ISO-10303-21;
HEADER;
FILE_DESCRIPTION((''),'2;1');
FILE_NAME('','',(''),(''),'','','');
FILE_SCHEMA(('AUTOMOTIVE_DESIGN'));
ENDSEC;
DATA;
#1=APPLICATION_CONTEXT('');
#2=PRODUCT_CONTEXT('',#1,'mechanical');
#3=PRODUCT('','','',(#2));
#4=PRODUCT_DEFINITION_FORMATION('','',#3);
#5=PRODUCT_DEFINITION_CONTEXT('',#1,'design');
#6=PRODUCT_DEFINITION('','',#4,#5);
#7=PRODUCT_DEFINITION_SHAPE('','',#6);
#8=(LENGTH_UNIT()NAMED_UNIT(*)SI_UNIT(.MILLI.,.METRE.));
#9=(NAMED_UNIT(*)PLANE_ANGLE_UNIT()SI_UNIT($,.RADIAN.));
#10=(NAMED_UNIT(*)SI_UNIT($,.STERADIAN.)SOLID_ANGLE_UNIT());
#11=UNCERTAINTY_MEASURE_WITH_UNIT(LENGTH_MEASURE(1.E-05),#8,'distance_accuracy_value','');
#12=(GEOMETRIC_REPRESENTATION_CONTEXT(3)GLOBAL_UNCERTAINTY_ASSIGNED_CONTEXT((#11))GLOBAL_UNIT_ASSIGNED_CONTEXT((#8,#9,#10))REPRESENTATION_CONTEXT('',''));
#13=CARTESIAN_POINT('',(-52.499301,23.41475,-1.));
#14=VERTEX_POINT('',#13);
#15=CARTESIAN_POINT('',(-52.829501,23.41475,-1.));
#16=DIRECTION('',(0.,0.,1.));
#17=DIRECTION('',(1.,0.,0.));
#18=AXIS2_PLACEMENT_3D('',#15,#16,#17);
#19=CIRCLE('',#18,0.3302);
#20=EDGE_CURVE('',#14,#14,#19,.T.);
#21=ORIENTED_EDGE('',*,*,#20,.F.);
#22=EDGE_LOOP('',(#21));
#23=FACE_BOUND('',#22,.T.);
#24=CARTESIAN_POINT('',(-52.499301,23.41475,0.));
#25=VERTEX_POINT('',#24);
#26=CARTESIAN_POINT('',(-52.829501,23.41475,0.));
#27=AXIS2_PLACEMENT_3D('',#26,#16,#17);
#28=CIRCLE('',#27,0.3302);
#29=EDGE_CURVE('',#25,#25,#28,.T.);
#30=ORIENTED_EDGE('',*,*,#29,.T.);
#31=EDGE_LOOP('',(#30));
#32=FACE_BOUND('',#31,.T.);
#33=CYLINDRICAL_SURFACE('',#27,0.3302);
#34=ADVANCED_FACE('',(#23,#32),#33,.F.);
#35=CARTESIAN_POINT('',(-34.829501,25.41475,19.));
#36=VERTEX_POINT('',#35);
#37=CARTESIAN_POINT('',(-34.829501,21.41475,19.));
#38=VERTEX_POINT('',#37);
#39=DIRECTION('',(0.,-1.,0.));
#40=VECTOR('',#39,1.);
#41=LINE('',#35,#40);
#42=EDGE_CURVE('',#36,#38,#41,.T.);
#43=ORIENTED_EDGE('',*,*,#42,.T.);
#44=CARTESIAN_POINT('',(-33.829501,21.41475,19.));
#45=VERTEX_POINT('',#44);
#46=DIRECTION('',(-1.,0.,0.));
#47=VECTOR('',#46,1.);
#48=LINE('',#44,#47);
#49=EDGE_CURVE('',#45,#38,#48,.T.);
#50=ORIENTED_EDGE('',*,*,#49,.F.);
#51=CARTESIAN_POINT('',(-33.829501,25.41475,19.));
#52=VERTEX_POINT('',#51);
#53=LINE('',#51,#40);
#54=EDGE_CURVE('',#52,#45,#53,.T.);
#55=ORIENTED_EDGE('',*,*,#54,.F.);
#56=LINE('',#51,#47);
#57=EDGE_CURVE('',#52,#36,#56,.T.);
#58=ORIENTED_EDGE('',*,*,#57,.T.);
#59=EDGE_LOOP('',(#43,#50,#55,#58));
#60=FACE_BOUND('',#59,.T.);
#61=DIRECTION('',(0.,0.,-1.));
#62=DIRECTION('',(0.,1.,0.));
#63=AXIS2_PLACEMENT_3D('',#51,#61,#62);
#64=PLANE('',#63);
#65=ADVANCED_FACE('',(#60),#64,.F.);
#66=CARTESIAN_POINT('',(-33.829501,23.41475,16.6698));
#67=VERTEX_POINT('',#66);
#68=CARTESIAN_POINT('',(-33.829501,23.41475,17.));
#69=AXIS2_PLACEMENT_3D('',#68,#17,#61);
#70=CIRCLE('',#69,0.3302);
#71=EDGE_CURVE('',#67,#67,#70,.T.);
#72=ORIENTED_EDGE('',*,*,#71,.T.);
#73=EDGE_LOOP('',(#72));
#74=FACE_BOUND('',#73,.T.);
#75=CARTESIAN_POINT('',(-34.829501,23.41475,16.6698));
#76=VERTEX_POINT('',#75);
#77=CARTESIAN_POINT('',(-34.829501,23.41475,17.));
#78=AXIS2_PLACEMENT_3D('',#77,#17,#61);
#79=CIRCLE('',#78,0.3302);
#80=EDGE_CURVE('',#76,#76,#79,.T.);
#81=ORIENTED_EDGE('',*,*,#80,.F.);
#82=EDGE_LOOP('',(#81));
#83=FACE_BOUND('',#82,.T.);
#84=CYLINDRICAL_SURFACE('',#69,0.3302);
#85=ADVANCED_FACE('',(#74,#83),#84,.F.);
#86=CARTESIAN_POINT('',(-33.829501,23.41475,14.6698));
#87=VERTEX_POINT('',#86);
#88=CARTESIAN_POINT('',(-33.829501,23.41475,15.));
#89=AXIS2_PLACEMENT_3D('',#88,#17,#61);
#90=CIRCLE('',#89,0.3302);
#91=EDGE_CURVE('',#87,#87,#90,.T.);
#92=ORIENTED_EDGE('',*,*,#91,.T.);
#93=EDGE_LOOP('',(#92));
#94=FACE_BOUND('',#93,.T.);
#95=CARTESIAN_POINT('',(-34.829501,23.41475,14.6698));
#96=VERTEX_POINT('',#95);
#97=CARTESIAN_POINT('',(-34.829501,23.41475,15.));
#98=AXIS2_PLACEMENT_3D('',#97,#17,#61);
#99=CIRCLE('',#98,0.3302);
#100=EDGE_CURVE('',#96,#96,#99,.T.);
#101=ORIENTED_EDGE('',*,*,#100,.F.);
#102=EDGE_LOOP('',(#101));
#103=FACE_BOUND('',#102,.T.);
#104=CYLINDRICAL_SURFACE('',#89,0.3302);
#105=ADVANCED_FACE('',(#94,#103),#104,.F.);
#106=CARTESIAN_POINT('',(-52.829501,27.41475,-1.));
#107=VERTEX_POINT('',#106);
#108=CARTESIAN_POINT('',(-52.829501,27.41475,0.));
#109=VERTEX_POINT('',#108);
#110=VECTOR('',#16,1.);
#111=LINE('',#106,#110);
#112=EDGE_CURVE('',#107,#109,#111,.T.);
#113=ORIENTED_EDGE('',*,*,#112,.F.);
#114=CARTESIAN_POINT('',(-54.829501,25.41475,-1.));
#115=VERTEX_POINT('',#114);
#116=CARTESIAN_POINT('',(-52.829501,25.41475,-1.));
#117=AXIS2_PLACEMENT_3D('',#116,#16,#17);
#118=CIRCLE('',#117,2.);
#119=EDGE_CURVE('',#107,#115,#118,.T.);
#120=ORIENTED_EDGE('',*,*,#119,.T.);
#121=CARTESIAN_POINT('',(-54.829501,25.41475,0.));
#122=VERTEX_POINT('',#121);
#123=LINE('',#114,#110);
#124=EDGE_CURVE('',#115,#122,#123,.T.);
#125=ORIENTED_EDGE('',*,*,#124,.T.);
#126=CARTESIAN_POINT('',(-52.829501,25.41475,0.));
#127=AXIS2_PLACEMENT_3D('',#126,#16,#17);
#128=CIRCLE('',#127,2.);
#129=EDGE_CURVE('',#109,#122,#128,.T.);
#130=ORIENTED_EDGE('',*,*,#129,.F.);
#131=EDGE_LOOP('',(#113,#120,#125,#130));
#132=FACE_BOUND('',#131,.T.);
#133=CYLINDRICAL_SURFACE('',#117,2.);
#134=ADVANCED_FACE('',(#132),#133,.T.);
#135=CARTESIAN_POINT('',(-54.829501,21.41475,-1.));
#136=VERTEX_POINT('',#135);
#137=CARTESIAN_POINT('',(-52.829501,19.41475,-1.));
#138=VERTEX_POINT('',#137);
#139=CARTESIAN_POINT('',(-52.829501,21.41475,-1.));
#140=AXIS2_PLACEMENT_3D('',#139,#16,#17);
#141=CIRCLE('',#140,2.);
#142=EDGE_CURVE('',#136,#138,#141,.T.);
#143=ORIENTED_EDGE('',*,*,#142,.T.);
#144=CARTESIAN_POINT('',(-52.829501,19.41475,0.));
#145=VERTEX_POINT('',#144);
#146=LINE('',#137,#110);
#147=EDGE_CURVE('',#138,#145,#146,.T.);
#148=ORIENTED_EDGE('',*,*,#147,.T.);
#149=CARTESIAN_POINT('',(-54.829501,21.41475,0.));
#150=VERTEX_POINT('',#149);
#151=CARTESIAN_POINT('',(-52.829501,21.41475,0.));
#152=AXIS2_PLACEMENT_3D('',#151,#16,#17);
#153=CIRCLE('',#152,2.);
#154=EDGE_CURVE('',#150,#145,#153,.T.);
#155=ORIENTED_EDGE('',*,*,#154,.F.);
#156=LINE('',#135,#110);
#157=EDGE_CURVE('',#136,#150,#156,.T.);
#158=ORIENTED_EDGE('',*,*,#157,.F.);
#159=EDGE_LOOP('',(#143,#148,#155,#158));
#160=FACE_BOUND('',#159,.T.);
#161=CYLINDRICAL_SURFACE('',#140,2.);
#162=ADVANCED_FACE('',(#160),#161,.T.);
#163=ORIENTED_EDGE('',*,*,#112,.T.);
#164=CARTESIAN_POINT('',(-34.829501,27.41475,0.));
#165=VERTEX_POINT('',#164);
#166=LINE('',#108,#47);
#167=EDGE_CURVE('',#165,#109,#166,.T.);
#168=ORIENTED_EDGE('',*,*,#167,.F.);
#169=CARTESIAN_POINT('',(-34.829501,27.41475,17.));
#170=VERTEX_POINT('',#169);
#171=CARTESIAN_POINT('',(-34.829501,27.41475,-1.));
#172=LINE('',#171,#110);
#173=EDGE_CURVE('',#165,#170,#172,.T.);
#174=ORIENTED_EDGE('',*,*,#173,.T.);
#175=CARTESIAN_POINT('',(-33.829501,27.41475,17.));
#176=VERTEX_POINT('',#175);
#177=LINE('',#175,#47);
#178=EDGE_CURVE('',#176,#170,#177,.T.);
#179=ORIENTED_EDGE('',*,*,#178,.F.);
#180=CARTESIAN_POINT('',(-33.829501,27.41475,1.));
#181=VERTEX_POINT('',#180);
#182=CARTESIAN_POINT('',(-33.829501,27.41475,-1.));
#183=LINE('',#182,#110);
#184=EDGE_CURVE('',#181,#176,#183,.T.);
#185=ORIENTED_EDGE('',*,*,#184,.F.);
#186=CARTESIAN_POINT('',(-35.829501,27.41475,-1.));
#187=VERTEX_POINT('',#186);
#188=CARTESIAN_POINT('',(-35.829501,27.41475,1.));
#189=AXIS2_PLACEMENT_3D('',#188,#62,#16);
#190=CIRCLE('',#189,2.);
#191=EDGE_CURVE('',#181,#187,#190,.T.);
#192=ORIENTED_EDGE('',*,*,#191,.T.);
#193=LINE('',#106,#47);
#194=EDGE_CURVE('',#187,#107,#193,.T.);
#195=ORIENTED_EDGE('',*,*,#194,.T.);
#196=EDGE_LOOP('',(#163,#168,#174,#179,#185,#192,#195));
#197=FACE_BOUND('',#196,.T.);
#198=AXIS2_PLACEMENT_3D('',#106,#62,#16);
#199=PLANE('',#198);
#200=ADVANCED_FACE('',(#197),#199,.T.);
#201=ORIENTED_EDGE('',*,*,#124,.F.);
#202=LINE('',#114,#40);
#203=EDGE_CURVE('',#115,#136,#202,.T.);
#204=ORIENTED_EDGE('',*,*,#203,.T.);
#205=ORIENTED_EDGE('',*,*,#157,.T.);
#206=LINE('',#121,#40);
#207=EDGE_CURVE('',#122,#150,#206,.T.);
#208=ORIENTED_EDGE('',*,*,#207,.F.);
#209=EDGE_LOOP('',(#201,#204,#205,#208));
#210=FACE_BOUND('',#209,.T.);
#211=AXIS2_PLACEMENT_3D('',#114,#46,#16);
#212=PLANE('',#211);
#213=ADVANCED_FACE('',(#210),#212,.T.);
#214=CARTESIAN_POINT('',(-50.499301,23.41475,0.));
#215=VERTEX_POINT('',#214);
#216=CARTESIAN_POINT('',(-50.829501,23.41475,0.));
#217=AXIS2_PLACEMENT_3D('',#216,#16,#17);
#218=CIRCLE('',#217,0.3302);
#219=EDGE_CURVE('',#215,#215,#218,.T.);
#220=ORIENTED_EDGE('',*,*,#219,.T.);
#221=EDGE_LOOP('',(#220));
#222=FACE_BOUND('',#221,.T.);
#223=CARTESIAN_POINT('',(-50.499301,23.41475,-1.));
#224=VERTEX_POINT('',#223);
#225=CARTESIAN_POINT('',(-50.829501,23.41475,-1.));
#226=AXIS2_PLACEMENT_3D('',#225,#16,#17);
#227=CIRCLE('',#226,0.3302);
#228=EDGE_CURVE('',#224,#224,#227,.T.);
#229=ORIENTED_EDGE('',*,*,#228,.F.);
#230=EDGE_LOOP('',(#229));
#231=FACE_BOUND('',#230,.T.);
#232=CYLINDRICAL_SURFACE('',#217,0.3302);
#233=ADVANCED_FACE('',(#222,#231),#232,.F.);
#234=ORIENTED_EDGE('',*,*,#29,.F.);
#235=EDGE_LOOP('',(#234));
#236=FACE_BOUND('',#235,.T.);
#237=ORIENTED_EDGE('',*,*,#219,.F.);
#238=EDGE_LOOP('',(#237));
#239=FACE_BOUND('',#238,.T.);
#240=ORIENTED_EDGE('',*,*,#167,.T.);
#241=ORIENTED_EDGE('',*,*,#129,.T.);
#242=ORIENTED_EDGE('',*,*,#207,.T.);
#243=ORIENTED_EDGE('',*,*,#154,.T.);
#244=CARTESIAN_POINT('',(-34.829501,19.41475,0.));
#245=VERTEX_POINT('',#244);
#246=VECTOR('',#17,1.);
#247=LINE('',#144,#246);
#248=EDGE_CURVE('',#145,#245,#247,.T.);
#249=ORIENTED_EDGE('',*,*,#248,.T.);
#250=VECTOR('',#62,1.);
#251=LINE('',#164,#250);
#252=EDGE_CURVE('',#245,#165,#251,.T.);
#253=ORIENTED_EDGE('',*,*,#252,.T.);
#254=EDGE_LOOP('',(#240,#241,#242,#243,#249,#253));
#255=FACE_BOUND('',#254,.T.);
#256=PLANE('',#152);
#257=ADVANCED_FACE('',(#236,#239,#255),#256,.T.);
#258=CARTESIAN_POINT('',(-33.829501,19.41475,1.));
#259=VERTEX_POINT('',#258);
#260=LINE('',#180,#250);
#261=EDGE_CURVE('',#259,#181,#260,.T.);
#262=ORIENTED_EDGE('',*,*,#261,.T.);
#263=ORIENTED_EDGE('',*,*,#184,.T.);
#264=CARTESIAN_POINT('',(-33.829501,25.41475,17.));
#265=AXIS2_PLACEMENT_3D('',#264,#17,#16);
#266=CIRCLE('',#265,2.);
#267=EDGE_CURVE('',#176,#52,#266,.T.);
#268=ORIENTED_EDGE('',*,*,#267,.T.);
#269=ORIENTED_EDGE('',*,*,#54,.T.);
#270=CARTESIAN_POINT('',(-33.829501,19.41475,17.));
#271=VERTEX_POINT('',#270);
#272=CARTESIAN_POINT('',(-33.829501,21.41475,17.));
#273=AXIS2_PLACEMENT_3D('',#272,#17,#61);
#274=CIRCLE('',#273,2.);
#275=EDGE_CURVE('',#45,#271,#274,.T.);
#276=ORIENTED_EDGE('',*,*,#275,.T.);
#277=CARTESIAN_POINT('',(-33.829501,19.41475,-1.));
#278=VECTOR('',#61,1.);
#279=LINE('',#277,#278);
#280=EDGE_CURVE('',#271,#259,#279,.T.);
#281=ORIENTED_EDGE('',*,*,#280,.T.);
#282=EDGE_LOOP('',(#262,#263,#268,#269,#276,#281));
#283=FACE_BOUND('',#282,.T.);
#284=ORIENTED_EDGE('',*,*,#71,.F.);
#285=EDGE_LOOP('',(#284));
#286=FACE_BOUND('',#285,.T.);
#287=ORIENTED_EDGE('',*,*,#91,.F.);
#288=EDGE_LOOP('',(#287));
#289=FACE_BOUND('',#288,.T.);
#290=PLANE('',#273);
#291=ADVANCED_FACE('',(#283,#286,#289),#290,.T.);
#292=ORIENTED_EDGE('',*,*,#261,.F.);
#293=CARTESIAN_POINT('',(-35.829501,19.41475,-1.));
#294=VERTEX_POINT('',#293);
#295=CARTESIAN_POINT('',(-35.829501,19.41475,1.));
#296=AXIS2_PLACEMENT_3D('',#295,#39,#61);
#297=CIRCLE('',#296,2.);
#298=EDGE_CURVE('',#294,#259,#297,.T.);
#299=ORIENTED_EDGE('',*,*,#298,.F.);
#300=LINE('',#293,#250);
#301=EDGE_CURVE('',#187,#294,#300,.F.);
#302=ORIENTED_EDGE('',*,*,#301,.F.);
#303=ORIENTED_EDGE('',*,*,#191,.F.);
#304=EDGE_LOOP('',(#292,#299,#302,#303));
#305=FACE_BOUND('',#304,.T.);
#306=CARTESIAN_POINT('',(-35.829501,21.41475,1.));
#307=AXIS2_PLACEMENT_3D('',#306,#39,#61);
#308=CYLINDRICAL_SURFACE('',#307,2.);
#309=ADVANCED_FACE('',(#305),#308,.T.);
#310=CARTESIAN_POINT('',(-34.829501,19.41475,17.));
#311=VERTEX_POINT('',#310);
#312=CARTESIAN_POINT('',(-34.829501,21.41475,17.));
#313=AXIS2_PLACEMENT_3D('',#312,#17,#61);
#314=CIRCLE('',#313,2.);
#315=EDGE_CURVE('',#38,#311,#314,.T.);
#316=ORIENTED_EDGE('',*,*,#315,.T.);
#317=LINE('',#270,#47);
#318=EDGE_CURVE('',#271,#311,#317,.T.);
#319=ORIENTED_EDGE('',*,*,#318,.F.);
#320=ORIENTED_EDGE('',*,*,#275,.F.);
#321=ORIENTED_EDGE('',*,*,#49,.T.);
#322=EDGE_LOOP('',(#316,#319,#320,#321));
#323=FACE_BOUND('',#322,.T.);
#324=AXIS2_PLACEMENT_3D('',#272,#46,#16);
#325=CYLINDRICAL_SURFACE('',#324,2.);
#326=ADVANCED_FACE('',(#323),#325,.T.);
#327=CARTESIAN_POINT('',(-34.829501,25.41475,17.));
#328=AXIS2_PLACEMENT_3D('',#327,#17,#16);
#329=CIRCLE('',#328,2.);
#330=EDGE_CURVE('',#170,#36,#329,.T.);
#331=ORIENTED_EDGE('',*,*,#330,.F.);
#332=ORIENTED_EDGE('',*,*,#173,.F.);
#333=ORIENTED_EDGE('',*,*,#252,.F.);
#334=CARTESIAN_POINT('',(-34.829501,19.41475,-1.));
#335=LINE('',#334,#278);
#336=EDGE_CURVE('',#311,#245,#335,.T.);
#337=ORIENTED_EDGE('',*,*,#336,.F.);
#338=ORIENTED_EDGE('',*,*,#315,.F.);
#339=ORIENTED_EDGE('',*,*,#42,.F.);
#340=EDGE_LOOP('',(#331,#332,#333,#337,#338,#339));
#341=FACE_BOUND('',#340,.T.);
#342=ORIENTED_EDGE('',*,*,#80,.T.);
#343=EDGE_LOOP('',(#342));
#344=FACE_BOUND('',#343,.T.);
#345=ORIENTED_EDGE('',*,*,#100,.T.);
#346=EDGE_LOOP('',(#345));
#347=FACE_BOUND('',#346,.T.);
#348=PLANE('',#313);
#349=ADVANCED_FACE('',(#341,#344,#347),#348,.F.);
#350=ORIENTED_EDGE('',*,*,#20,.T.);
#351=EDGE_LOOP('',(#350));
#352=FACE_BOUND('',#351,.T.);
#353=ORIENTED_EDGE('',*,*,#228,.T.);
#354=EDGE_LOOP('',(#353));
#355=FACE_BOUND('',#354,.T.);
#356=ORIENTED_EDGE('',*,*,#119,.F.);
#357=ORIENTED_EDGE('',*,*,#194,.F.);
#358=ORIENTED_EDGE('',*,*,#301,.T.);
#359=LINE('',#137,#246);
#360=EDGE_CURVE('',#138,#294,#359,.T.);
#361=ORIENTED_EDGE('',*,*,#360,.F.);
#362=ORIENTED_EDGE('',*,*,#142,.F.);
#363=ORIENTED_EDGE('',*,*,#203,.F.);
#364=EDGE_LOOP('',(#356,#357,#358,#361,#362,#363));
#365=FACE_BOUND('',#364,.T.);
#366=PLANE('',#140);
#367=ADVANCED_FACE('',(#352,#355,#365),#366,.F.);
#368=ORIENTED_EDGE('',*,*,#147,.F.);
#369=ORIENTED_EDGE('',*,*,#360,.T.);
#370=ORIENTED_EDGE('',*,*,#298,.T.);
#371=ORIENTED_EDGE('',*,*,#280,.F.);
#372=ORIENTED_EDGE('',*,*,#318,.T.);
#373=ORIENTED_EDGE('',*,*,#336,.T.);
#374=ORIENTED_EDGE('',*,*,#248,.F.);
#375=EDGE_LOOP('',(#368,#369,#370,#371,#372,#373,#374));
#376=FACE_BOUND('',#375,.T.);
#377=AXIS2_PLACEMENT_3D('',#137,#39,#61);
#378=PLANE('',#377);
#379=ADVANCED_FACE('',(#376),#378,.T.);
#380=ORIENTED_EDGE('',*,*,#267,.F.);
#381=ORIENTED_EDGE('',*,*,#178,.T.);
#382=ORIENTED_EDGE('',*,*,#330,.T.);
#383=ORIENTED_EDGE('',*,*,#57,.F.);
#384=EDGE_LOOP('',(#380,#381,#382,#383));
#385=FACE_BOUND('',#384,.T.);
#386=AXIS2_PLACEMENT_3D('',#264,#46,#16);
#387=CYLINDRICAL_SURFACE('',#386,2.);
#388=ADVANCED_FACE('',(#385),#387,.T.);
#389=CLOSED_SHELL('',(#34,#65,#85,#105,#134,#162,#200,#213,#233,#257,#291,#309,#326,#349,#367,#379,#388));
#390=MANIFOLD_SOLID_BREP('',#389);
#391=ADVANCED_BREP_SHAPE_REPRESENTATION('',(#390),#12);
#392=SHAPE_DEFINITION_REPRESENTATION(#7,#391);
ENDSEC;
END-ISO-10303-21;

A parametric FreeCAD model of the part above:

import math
import FreeCAD as App
import Part
import Sketcher
from FreeCAD import Vector


def edges_at(feature, points):
    """Names of the edges that pass closest to the given points."""
    edges = feature.Shape.Edges
    near = lambda p: min(range(len(edges)), key=lambda i: edges[i].distToShape(Part.Vertex(*p))[0])
    return sorted({f"Edge{near(p) + 1}" for p in points})

doc = App.newDocument("Part")
params = doc.addObject("Spreadsheet::Sheet", "Params")
for row, (alias, value) in enumerate([
    ("sketch1_radius", "2 mm"),
    ("sketch1_width", "18 mm"),
    ("sketch1_height", "4 mm"),
    ("pad1_length", "1 mm"),
    ("sketch2_radius", "2 mm"),
    ("sketch2_width", "4 mm"),
    ("sketch2_height", "18 mm"),
    ("pad2_length", "1 mm"),
    ("hole_diameter", "0.6604 mm"),
    ("hole2_diameter", "0.6604 mm"),
    ("hole3_diameter", "0.6604 mm"),
    ("hole4_diameter", "0.6604 mm"),
    ("fillet_radius", "2 mm"),
], start=1):
    params.set(f"A{row}", alias)
    params.set(f"B{row}", "=" + value)
    params.setAlias(f"B{row}", alias)

body = doc.addObject("PartDesign::Body", "Body")

sketch1 = doc.addObject("Sketcher::SketchObject", "Sketch")
body.addObject(sketch1)
sketch1.AttachmentSupport = (doc.XY_Plane, [""])
sketch1.MapMode = "FlatFace"
sketch1.addGeometry([
    Part.LineSegment(Vector(-34.8, 27.4, 0), Vector(-52.8, 27.4, 0)),
    Part.ArcOfCircle(Part.Circle(Vector(-52.8, 25.4, 0), Vector(0, 0, 1), 2), math.radians(90), math.radians(180)),
    Part.LineSegment(Vector(-54.8, 25.4, 0), Vector(-54.8, 21.4, 0)),
    Part.ArcOfCircle(Part.Circle(Vector(-52.8, 21.4, 0), Vector(0, 0, 1), 2), math.radians(180), math.radians(270)),
    Part.LineSegment(Vector(-52.8, 19.4, 0), Vector(-34.8, 19.4, 0)),
    Part.LineSegment(Vector(-34.8, 19.4, 0), Vector(-34.8, 27.4, 0)),
], False)
sketch1.addConstraint([
    Sketcher.Constraint("Tangent", 0, 2, 1, 1),
    Sketcher.Constraint("Tangent", 1, 2, 2, 1),
    Sketcher.Constraint("Tangent", 2, 2, 3, 1),
    Sketcher.Constraint("Tangent", 3, 2, 4, 1),
    Sketcher.Constraint("Coincident", 4, 2, 5, 1),
    Sketcher.Constraint("Coincident", 5, 2, 0, 1),
    Sketcher.Constraint("Horizontal", 0),
    Sketcher.Constraint("Vertical", 2),
    Sketcher.Constraint("Horizontal", 4),
    Sketcher.Constraint("Vertical", 5),
    Sketcher.Constraint("Equal", 1, 3),
    Sketcher.Constraint("Radius", 1, 2.0),
    Sketcher.Constraint("DistanceX", 0, 2, 0, 1, 18.0),
    Sketcher.Constraint("DistanceY", 2, 2, 2, 1, 4.0),
    Sketcher.Constraint("DistanceX", 1, 3, -1, 1, 52.829501),
    Sketcher.Constraint("DistanceY", -1, 1, 1, 3, 25.41475),
])
sketch1.setExpression("Constraints[11]", "Params.sketch1_radius")
sketch1.setExpression("Constraints[12]", "Params.sketch1_width")
sketch1.setExpression("Constraints[13]", "Params.sketch1_height")
pad1 = doc.addObject("PartDesign::Pad", "Pad")
body.addObject(pad1)
pad1.Profile = sketch1
pad1.setExpression("Length", "Params.pad1_length")
pad1.Reversed = True

sketch2 = doc.addObject("Sketcher::SketchObject", "Sketch001")
body.addObject(sketch2)
sketch2.AttachmentSupport = (doc.YZ_Plane, [""])
sketch2.MapMode = "FlatFace"
sketch2.AttachmentOffset = App.Placement(Vector(0, 0, -34.829501), App.Rotation())
sketch2.addGeometry([
    Part.LineSegment(Vector(27.4, -1, 0), Vector(27.4, 17, 0)),
    Part.ArcOfCircle(Part.Circle(Vector(25.4, 17, 0), Vector(0, 0, 1), 2), math.radians(0), math.radians(90)),
    Part.LineSegment(Vector(25.4, 19, 0), Vector(21.4, 19, 0)),
    Part.ArcOfCircle(Part.Circle(Vector(21.4, 17, 0), Vector(0, 0, 1), 2), math.radians(90), math.radians(180)),
    Part.LineSegment(Vector(19.4, 17, 0), Vector(19.4, -1, 0)),
    Part.LineSegment(Vector(19.4, -1, 0), Vector(27.4, -1, 0)),
], False)
sketch2.addConstraint([
    Sketcher.Constraint("Tangent", 0, 2, 1, 1),
    Sketcher.Constraint("Tangent", 1, 2, 2, 1),
    Sketcher.Constraint("Tangent", 2, 2, 3, 1),
    Sketcher.Constraint("Tangent", 3, 2, 4, 1),
    Sketcher.Constraint("Coincident", 4, 2, 5, 1),
    Sketcher.Constraint("Coincident", 5, 2, 0, 1),
    Sketcher.Constraint("Vertical", 0),
    Sketcher.Constraint("Horizontal", 2),
    Sketcher.Constraint("Vertical", 4),
    Sketcher.Constraint("Horizontal", 5),
    Sketcher.Constraint("Equal", 1, 3),
    Sketcher.Constraint("Radius", 1, 2.0),
    Sketcher.Constraint("DistanceX", 2, 2, 2, 1, 4.0),
    Sketcher.Constraint("DistanceY", 0, 1, 0, 2, 18.0),
    Sketcher.Constraint("DistanceY", -1, 1, 1, 3, 17.0),
    Sketcher.Constraint("DistanceX", -1, 1, 1, 3, 25.41475),
])
sketch2.setExpression("Constraints[11]", "Params.sketch2_radius")
sketch2.setExpression("Constraints[12]", "Params.sketch2_width")
sketch2.setExpression("Constraints[13]", "Params.sketch2_height")
pad2 = doc.addObject("PartDesign::Pad", "Pad001")
body.addObject(pad2)
pad2.Profile = sketch2
pad2.setExpression("Length", "Params.pad2_length")

sketch3 = doc.addObject("Sketcher::SketchObject", "Sketch002")
body.addObject(sketch3)
sketch3.AttachmentSupport = (doc.XY_Plane, [""])
sketch3.MapMode = "FlatFace"
sketch3.addGeometry(Part.Circle(Vector(-52.83, 23.41, 0), Vector(0, 0, 1), 0.33), False)
sketch3.addConstraint([
    Sketcher.Constraint("Diameter", 0, 0.6604),
    Sketcher.Constraint("DistanceX", 0, 3, -1, 1, 52.829501),
    Sketcher.Constraint("DistanceY", -1, 1, 0, 3, 23.41475),
])
doc.recompute()
hole = doc.addObject("PartDesign::Hole", "Hole")
body.addObject(hole)
hole.Profile = sketch3
hole.ThreadType = "None"
hole.setExpression("Diameter", "Params.hole_diameter")
hole.DepthType = "ThroughAll"

sketch4 = doc.addObject("Sketcher::SketchObject", "Sketch003")
body.addObject(sketch4)
sketch4.AttachmentSupport = (doc.XY_Plane, [""])
sketch4.MapMode = "FlatFace"
sketch4.addGeometry(Part.Circle(Vector(-50.83, 23.41, 0), Vector(0, 0, 1), 0.33), False)
sketch4.addConstraint([
    Sketcher.Constraint("Diameter", 0, 0.6604),
    Sketcher.Constraint("DistanceX", 0, 3, -1, 1, 50.829501),
    Sketcher.Constraint("DistanceY", -1, 1, 0, 3, 23.41475),
])
doc.recompute()
hole2 = doc.addObject("PartDesign::Hole", "Hole001")
body.addObject(hole2)
hole2.Profile = sketch4
hole2.ThreadType = "None"
hole2.setExpression("Diameter", "Params.hole2_diameter")
hole2.DepthType = "ThroughAll"

sketch5 = doc.addObject("Sketcher::SketchObject", "Sketch004")
body.addObject(sketch5)
sketch5.AttachmentSupport = (doc.YZ_Plane, [""])
sketch5.MapMode = "FlatFace"
sketch5.AttachmentOffset = App.Placement(Vector(0, 0, -33.829501), App.Rotation())
sketch5.addGeometry(Part.Circle(Vector(23.41, 17, 0), Vector(0, 0, 1), 0.33), False)
sketch5.addConstraint([
    Sketcher.Constraint("DistanceY", -1, 1, 0, 3, 17.0),
    Sketcher.Constraint("Diameter", 0, 0.6604),
    Sketcher.Constraint("DistanceX", -1, 1, 0, 3, 23.41475),
])
doc.recompute()
hole3 = doc.addObject("PartDesign::Hole", "Hole002")
body.addObject(hole3)
hole3.Profile = sketch5
hole3.ThreadType = "None"
hole3.setExpression("Diameter", "Params.hole3_diameter")
hole3.DepthType = "ThroughAll"

sketch6 = doc.addObject("Sketcher::SketchObject", "Sketch005")
body.addObject(sketch6)
sketch6.AttachmentSupport = (doc.YZ_Plane, [""])
sketch6.MapMode = "FlatFace"
sketch6.AttachmentOffset = App.Placement(Vector(0, 0, -33.829501), App.Rotation())
sketch6.addGeometry(Part.Circle(Vector(23.41, 15, 0), Vector(0, 0, 1), 0.33), False)
sketch6.addConstraint([
    Sketcher.Constraint("DistanceY", -1, 1, 0, 3, 15.0),
    Sketcher.Constraint("Diameter", 0, 0.6604),
    Sketcher.Constraint("DistanceX", -1, 1, 0, 3, 23.41475),
])
doc.recompute()
hole4 = doc.addObject("PartDesign::Hole", "Hole003")
body.addObject(hole4)
hole4.Profile = sketch6
hole4.ThreadType = "None"
hole4.setExpression("Diameter", "Params.hole4_diameter")
hole4.DepthType = "ThroughAll"
doc.recompute()

fillet = doc.addObject("PartDesign::Fillet", "Fillet")
body.addObject(fillet)
fillet.Base = (hole4, edges_at(hole4, [(-33.83, 23.415, -1)]))
fillet.setExpression("Radius", "Params.fillet_radius")

doc.recompute()
